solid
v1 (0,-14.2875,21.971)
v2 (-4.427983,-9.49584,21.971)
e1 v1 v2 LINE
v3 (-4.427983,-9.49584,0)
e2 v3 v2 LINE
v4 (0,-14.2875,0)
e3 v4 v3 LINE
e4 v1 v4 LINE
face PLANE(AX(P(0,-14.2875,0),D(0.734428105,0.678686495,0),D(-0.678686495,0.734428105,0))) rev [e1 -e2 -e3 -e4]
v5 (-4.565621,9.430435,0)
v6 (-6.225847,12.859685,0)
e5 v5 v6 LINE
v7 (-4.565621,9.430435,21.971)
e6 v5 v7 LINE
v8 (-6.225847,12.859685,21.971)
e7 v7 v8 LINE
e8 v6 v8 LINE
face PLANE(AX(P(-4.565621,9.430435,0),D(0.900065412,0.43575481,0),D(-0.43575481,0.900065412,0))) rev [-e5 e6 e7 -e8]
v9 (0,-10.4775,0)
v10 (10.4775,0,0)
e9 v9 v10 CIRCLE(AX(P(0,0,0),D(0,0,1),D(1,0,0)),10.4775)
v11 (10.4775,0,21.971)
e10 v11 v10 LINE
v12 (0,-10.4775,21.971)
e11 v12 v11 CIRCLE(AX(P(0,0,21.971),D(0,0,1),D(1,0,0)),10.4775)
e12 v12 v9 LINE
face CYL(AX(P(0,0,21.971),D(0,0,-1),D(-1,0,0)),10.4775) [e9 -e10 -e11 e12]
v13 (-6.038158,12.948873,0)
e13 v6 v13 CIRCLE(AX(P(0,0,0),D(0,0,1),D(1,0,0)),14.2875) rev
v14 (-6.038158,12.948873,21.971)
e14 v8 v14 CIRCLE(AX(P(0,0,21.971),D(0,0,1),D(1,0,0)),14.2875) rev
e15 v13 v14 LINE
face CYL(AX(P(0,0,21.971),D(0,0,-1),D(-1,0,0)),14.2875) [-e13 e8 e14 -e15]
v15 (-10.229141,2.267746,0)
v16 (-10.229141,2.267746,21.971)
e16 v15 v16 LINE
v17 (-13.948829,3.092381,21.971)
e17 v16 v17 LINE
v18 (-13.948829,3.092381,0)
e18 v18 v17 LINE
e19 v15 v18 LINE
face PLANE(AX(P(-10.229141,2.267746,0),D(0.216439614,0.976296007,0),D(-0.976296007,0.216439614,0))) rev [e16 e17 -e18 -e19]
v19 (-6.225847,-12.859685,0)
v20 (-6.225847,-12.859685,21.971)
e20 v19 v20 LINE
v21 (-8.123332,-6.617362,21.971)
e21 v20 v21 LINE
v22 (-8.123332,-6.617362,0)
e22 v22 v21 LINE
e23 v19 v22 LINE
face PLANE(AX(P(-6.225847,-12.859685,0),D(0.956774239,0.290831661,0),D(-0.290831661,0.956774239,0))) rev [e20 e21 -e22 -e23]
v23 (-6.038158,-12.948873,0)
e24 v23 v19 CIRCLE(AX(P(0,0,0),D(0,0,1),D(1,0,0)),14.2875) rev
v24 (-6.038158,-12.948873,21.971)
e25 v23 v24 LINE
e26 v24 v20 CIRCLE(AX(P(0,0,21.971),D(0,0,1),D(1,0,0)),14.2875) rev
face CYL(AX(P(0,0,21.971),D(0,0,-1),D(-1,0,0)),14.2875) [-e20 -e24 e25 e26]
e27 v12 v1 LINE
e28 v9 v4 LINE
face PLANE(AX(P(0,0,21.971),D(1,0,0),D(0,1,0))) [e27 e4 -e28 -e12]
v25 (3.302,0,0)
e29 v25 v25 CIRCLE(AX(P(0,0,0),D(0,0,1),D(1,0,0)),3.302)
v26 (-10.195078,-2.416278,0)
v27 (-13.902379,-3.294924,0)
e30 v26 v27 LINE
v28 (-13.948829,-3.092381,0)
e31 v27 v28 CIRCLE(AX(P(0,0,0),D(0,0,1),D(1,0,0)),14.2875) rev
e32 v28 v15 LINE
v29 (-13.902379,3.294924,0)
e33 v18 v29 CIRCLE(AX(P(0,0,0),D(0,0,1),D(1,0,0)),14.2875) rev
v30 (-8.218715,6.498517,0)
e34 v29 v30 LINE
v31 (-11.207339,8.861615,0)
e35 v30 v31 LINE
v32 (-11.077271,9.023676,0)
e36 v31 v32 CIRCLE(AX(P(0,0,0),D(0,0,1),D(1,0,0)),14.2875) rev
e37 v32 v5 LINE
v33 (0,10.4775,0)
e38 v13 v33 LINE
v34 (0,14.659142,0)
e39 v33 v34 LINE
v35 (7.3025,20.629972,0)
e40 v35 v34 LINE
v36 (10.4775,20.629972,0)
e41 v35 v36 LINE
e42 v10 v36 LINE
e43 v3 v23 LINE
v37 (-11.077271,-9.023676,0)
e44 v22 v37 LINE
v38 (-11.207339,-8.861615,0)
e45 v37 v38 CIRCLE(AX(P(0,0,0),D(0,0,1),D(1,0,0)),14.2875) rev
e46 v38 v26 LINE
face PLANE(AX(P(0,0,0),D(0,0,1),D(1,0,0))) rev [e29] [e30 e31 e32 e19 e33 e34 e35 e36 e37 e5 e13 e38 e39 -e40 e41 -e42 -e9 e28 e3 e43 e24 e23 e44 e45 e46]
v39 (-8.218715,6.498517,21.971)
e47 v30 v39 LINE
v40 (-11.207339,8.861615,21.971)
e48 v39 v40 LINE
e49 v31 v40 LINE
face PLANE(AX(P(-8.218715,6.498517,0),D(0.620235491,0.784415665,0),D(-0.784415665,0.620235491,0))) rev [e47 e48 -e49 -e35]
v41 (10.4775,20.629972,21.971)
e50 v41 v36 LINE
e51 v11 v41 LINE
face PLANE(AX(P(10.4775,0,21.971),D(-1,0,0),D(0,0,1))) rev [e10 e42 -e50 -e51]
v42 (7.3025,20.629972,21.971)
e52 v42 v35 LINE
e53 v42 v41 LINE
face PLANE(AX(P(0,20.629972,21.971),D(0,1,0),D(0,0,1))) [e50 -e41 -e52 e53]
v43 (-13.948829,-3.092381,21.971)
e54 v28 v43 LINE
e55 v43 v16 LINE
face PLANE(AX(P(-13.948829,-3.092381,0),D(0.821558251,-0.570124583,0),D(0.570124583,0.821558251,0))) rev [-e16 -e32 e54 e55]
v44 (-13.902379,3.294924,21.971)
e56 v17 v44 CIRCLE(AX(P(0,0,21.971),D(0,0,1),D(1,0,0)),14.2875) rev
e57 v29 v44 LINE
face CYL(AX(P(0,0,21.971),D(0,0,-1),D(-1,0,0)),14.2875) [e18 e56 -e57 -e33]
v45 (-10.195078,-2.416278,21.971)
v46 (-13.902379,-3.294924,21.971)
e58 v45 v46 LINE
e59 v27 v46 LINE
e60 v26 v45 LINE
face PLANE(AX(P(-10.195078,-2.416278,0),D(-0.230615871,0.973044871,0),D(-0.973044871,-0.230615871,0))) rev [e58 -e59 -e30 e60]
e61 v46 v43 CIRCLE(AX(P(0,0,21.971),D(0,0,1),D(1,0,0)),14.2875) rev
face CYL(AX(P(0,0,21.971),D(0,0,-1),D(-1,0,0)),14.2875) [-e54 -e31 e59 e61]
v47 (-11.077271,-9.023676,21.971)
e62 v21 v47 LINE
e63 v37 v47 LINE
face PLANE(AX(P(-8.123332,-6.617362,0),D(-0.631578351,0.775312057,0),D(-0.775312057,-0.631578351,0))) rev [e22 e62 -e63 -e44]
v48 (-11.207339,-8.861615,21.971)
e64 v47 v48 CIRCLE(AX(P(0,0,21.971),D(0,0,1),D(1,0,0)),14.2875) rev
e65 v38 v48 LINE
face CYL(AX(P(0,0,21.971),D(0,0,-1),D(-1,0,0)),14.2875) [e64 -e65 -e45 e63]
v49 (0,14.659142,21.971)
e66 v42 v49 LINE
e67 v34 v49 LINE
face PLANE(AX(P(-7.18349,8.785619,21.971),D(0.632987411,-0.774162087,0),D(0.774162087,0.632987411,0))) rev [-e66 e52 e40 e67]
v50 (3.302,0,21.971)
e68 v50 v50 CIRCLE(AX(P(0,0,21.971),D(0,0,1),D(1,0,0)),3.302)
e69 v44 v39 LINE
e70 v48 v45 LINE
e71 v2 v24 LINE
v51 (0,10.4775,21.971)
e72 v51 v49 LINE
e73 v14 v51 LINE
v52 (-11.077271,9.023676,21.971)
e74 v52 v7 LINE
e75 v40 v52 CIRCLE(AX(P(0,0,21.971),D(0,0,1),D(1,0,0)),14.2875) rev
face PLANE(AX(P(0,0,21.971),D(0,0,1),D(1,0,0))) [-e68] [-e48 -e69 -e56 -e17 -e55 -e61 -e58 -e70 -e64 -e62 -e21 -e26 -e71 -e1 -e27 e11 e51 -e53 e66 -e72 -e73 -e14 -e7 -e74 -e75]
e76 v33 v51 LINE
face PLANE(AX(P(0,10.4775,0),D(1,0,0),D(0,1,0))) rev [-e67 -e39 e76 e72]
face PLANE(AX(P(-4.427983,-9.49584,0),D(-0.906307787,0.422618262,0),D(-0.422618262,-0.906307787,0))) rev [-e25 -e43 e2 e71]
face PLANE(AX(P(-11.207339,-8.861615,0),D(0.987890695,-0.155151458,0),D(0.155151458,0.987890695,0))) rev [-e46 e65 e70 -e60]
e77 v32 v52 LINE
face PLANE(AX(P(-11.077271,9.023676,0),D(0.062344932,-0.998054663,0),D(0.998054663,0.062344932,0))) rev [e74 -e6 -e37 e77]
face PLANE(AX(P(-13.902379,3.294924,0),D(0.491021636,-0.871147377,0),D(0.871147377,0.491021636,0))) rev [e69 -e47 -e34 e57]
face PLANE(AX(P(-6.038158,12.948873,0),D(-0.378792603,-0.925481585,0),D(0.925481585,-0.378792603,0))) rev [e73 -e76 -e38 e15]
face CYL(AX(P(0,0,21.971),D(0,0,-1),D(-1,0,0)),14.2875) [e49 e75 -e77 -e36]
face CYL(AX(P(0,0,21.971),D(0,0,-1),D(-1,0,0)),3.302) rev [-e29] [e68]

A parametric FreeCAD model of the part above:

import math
import FreeCAD as App
import Part
import Sketcher

V = App.Vector
Q = App.Units.Quantity


def add_polygon(sketch, points):
    """Adds a closed chain of lines whose ends are joined by coincident constraints."""
    first, n = sketch.GeometryCount, len(points)
    for a, b in zip(points, points[1:] + points[:1]):
        sketch.addGeometry(Part.LineSegment(App.Vector(*a, 0), App.Vector(*b, 0)), False)
    for i in range(n):
        sketch.addConstraint(Sketcher.Constraint("Coincident", first + i, 2, first + (i + 1) % n, 1))

doc = App.newDocument("Part")
body = doc.addObject("PartDesign::Body", "Body")

sketch1 = body.newObject("Sketcher::SketchObject", "Sketch")
sketch1.AttachmentSupport = (doc.getObject("XY_Plane"), [""])
sketch1.MapMode = "FlatFace"
sketch1.addGeometry(Part.ArcOfCircle(Part.Circle(V(0, 0, 0), V(0, 0, 1), 10.5), math.radians(-90), math.radians(0)), False)
sketch1.addGeometry(Part.LineSegment(V(10.5, 0, 0), V(10.5, 20.6, 0)), False)
sketch1.addGeometry(Part.LineSegment(V(10.5, 20.6, 0), V(7.3, 20.6, 0)), False)
sketch1.addGeometry(Part.LineSegment(V(7.3, 20.6, 0), V(-0.5, 14.3, 0)), False)
sketch1.addGeometry(Part.ArcOfCircle(Part.Circle(V(0, 0, 0), V(0, 0, 1), 14.3), math.radians(92), math.radians(270)), False)
sketch1.addGeometry(Part.LineSegment(V(0, -14.3, 0), V(0, -10.5, 0)), False)
sketch1.addGeometry(Part.Circle(V(0, 0, 0), V(0, 0, 1), 3.3), False)
sketch1.addConstraint(Sketcher.Constraint("Tangent", 0, 2, 1, 1))
sketch1.addConstraint(Sketcher.Constraint("Coincident", 1, 2, 2, 1))
sketch1.addConstraint(Sketcher.Constraint("Coincident", 2, 2, 3, 1))
sketch1.addConstraint(Sketcher.Constraint("Coincident", 3, 2, 4, 1))
sketch1.addConstraint(Sketcher.Constraint("Coincident", 4, 2, 5, 1))
sketch1.addConstraint(Sketcher.Constraint("Coincident", 5, 2, 0, 1))
sketch1.addConstraint(Sketcher.Constraint("Vertical", 1))
sketch1.addConstraint(Sketcher.Constraint("Horizontal", 2))
sketch1.addConstraint(Sketcher.Constraint("Vertical", 5))
sketch1.addConstraint(Sketcher.Constraint("Coincident", 0, 3, -1, 1))
sketch1.addConstraint(Sketcher.Constraint("Coincident", 4, 3, -1, 1))
sketch1.addConstraint(Sketcher.Constraint("Coincident", 6, 3, -1, 1))
sketch1.addConstraint(Sketcher.Constraint("PointOnObject", 4, 2, -2))
sketch1.addConstraint(Sketcher.Constraint("Diameter", 6, Q("0.26 in")))
sketch1.addConstraint(Sketcher.Constraint("Radius", 4, Q("0.5625 in")))
sketch1.addConstraint(Sketcher.Constraint("DistanceY", 5, 1, 5, 2, Q("0.15 in")))
sketch1.addConstraint(Sketcher.Constraint("DistanceX", 2, 2, 2, 1, Q("0.125 in")))
sketch1.addConstraint(Sketcher.Constraint("DistanceY", 3, 2, 2, 2, Q("0.25 in")))
sketch1.addConstraint(Sketcher.Constraint("DistanceY", 1, 1, 1, 2, Q("20.629972 mm")))
pad1 = body.newObject("PartDesign::Pad", "Pad")
pad1.Profile = sketch1
pad1.Length = Q("0.865 in")

sketch2 = body.newObject("Sketcher::SketchObject", "Sketch001")
sketch2.AttachmentSupport = (doc.getObject("XY_Plane"), [""])
sketch2.MapMode = "FlatFace"
sketch2.AttachmentOffset = App.Placement(V(0, 0, 0.865 * 25.4), App.Rotation())
sketch2.addGeometry(Part.LineSegment(V(0, -14.3, 0), V(-4.4, -9.5, 0)), False)
sketch2.addGeometry(Part.LineSegment(V(-4.4, -9.5, 0), V(-6, -12.9, 0)), False)
sketch2.addGeometry(Part.ArcOfCircle(Part.Circle(V(0, 0, 0), V(0, 0, 1), 14.3), math.radians(-115), math.radians(-90)), False)
sketch2.addGeometry(Part.LineSegment(V(-8.1, -6.6, 0), V(-11.1, -9, 0)), False)
sketch2.addGeometry(Part.ArcOfCircle(Part.Circle(V(0, 0, 0), V(0, 0, 1), 14.3), math.radians(-141), math.radians(-116)), False)
sketch2.addGeometry(Part.LineSegment(V(-6.2, -12.9, 0), V(-8.1, -6.6, 0)), False)
sketch2.addGeometry(Part.LineSegment(V(-10.2, -2.4, 0), V(-13.9, -3.3, 0)), False)
sketch2.addGeometry(Part.ArcOfCircle(Part.Circle(V(0, 0, 0), V(0, 0, 1), 14.3), math.radians(-167), math.radians(-142)), False)
sketch2.addGeometry(Part.LineSegment(V(-11.2, -8.9, 0), V(-10.2, -2.4, 0)), False)
sketch2.addGeometry(Part.LineSegment(V(-10.2, 2.3, 0), V(-13.9, 3.1, 0)), False)
sketch2.addGeometry(Part.ArcOfCircle(Part.Circle(V(0, 0, 0), V(0, 0, 1), 14.3), math.radians(168), math.radians(192)), False)
sketch2.addGeometry(Part.LineSegment(V(-13.9, -3.1, 0), V(-10.2, 2.3, 0)), False)
sketch2.addGeometry(Part.LineSegment(V(-8.2, 6.5, 0), V(-11.2, 8.9, 0)), False)
sketch2.addGeometry(Part.ArcOfCircle(Part.Circle(V(0, 0, 0), V(0, 0, 1), 14.3), math.radians(142), math.radians(167)), False)
sketch2.addGeometry(Part.LineSegment(V(-13.9, 3.3, 0), V(-8.2, 6.5, 0)), False)
sketch2.addGeometry(Part.LineSegment(V(-4.6, 9.4, 0), V(-6.2, 12.9, 0)), False)
sketch2.addGeometry(Part.ArcOfCircle(Part.Circle(V(0, 0, 0), V(0, 0, 1), 14.3), math.radians(116), math.radians(141)), False)
sketch2.addGeometry(Part.LineSegment(V(-11.1, 9, 0), V(-4.6, 9.4, 0)), False)
sketch2.addGeometry(Part.LineSegment(V(0, 10.5, 0), V(0, 14.3, 0)), False)
sketch2.addGeometry(Part.ArcOfCircle(Part.Circle(V(0, 0, 0), V(0, 0, 1), 14.3), math.radians(90), math.radians(115)), False)
sketch2.addGeometry(Part.LineSegment(V(-6, 12.9, 0), V(0, 10.5, 0)), False)
sketch2.addConstraint(Sketcher.Constraint("Coincident", 0, 2, 1, 1))
sketch2.addConstraint(Sketcher.Constraint("Coincident", 1, 2, 2, 1))
sketch2.addConstraint(Sketcher.Constraint("Coincident", 2, 2, 0, 1))
sketch2.addConstraint(Sketcher.Constraint("Coincident", 3, 2, 4, 1))
sketch2.addConstraint(Sketcher.Constraint("Coincident", 4, 2, 5, 1))
sketch2.addConstraint(Sketcher.Constraint("Coincident", 5, 2, 3, 1))
sketch2.addConstraint(Sketcher.Constraint("Coincident", 6, 2, 7, 1))
sketch2.addConstraint(Sketcher.Constraint("Coincident", 7, 2, 8, 1))
sketch2.addConstraint(Sketcher.Constraint("Coincident", 8, 2, 6, 1))
sketch2.addConstraint(Sketcher.Constraint("Coincident", 9, 2, 10, 1))
sketch2.addConstraint(Sketcher.Constraint("Coincident", 10, 2, 11, 1))
sketch2.addConstraint(Sketcher.Constraint("Coincident", 11, 2, 9, 1))
sketch2.addConstraint(Sketcher.Constraint("Coincident", 12, 2, 13, 1))
sketch2.addConstraint(Sketcher.Constraint("Coincident", 13, 2, 14, 1))
sketch2.addConstraint(Sketcher.Constraint("Coincident", 14, 2, 12, 1))
sketch2.addConstraint(Sketcher.Constraint("Coincident", 15, 2, 16, 1))
sketch2.addConstraint(Sketcher.Constraint("Coincident", 16, 2, 17, 1))
sketch2.addConstraint(Sketcher.Constraint("Coincident", 17, 2, 15, 1))
sketch2.addConstraint(Sketcher.Constraint("Coincident", 18, 2, 19, 1))
sketch2.addConstraint(Sketcher.Constraint("Coincident", 19, 2, 20, 1))
sketch2.addConstraint(Sketcher.Constraint("Coincident", 20, 2, 18, 1))
sketch2.addConstraint(Sketcher.Constraint("Vertical", 18))
sketch2.addConstraint(Sketcher.Constraint("Coincident", 2, 3, -1, 1))
sketch2.addConstraint(Sketcher.Constraint("Coincident", 4, 3, -1, 1))
sketch2.addConstraint(Sketcher.Constraint("Coincident", 7, 3, -1, 1))
sketch2.addConstraint(Sketcher.Constraint("Coincident", 10, 3, -1, 1))
sketch2.addConstraint(Sketcher.Constraint("Coincident", 13, 3, -1, 1))
sketch2.addConstraint(Sketcher.Constraint("Coincident", 16, 3, -1, 1))
sketch2.addConstraint(Sketcher.Constraint("Coincident", 19, 3, -1, 1))
sketch2.addConstraint(Sketcher.Constraint("Equal", 2, 4))
sketch2.addConstraint(Sketcher.Constraint("Equal", 4, 7))
sketch2.addConstraint(Sketcher.Constraint("Equal", 7, 10))
sketch2.addConstraint(Sketcher.Constraint("Equal", 10, 13))
sketch2.addConstraint(Sketcher.Constraint("Equal", 13, 16))
sketch2.addConstraint(Sketcher.Constraint("Equal", 16, 19))
sketch2.addConstraint(Sketcher.Constraint("PointOnObject", 2, 2, -2))
sketch2.addConstraint(Sketcher.Constraint("PointOnObject", 18, 2, -2))
sketch2.addConstraint(Sketcher.Constraint("Vertical", 9, 2, 10, 2))
sketch2.addConstraint(Sketcher.Constraint("Vertical", 7, 2, 12, 2))
sketch2.addConstraint(Sketcher.Constraint("Vertical", 6, 2, 13, 2))
sketch2.addConstraint(Sketcher.Constraint("Vertical", 4, 2, 15, 2))
sketch2.addConstraint(Sketcher.Constraint("Vertical", 3, 2, 16, 2))
sketch2.addConstraint(Sketcher.Constraint("Vertical", 1, 2, 19, 2))
sketch2.addConstraint(Sketcher.Constraint("Equal", 1, 3))
sketch2.addConstraint(Sketcher.Constraint("Equal", 0, 5))
sketch2.addConstraint(Sketcher.Constraint("Equal", 3, 6))
sketch2.addConstraint(Sketcher.Constraint("Equal", 5, 8))
sketch2.addConstraint(Sketcher.Constraint("Equal", 6, 9))
sketch2.addConstraint(Sketcher.Constraint("Equal", 8, 11))
sketch2.addConstraint(Sketcher.Constraint("Equal", 9, 12))
sketch2.addConstraint(Sketcher.Constraint("Equal", 11, 14))
sketch2.addConstraint(Sketcher.Constraint("Equal", 12, 15))
sketch2.addConstraint(Sketcher.Constraint("Equal", 14, 17))
sketch2.addConstraint(Sketcher.Constraint("Equal", 17, 20))
sketch2.addConstraint(Sketcher.Constraint("Angle", 1, Q("-115 deg")))
sketch2.addConstraint(Sketcher.Constraint("Radius", 2, Q("0.5625 in")))
sketch2.addConstraint(Sketcher.Constraint("DistanceY", 18, 1, 18, 2, Q("0.15 in")))
sketch2.addConstraint(Sketcher.Constraint("Angle", 9, Q("167.5 deg")))
sketch2.addConstraint(Sketcher.Constraint("Distance", 1, Q("0.15 in")))
sketch2.addConstraint(Sketcher.Constraint("DistanceY", 9, 2, 14, 2, Q("0.1340999 in")))
sketch2.addConstraint(Sketcher.Constraint("DistanceX", 6, 2, 8, 2, Q("3.707301 mm")))
sketch2.addConstraint(Sketcher.Constraint("DistanceX", 3, 2, -1, 1, Q("11.077271 mm")))
sketch2.addConstraint(Sketcher.Constraint("DistanceX", 4, 2, 1, 2, Q("0.187688 mm")))
pocket1 = body.newObject("PartDesign::Pocket", "Pocket")
pocket1.Profile = sketch2
pocket1.Type = "ThroughAll"

sketch3 = body.newObject("Sketcher::SketchObject", "Sketch002")
sketch3.AttachmentSupport = (doc.getObject("XY_Plane"), [""])
sketch3.MapMode = "FlatFace"
sketch3.AttachmentOffset = App.Placement(V(0, 0, 0.865 * 25.4), App.Rotation())
add_polygon(sketch3, [(-0.46, 14.28), (0, 14.29), (0, 14.66)])
sketch3.addConstraint(Sketcher.Constraint("Vertical", 1))
sketch3.addConstraint(Sketcher.Constraint("PointOnObject", 0, 2, -2))
sketch3.addConstraint(Sketcher.Constraint("Angle", 0, Q("0.93 deg")))
sketch3.addConstraint(Sketcher.Constraint("DistanceY", -1, 1, 0, 2, Q("0.5625 in")))
sketch3.addConstraint(Sketcher.Constraint("DistanceY", 1, 1, 1, 2, Q("0.371642 mm")))
sketch3.addConstraint(Sketcher.Constraint("DistanceY", 2, 2, 1, 2, Q("0.37917 mm")))
pocket2 = body.newObject("PartDesign::Pocket", "Pocket001")
pocket2.Profile = sketch3
pocket2.Type = "ThroughAll"

doc.recompute()
